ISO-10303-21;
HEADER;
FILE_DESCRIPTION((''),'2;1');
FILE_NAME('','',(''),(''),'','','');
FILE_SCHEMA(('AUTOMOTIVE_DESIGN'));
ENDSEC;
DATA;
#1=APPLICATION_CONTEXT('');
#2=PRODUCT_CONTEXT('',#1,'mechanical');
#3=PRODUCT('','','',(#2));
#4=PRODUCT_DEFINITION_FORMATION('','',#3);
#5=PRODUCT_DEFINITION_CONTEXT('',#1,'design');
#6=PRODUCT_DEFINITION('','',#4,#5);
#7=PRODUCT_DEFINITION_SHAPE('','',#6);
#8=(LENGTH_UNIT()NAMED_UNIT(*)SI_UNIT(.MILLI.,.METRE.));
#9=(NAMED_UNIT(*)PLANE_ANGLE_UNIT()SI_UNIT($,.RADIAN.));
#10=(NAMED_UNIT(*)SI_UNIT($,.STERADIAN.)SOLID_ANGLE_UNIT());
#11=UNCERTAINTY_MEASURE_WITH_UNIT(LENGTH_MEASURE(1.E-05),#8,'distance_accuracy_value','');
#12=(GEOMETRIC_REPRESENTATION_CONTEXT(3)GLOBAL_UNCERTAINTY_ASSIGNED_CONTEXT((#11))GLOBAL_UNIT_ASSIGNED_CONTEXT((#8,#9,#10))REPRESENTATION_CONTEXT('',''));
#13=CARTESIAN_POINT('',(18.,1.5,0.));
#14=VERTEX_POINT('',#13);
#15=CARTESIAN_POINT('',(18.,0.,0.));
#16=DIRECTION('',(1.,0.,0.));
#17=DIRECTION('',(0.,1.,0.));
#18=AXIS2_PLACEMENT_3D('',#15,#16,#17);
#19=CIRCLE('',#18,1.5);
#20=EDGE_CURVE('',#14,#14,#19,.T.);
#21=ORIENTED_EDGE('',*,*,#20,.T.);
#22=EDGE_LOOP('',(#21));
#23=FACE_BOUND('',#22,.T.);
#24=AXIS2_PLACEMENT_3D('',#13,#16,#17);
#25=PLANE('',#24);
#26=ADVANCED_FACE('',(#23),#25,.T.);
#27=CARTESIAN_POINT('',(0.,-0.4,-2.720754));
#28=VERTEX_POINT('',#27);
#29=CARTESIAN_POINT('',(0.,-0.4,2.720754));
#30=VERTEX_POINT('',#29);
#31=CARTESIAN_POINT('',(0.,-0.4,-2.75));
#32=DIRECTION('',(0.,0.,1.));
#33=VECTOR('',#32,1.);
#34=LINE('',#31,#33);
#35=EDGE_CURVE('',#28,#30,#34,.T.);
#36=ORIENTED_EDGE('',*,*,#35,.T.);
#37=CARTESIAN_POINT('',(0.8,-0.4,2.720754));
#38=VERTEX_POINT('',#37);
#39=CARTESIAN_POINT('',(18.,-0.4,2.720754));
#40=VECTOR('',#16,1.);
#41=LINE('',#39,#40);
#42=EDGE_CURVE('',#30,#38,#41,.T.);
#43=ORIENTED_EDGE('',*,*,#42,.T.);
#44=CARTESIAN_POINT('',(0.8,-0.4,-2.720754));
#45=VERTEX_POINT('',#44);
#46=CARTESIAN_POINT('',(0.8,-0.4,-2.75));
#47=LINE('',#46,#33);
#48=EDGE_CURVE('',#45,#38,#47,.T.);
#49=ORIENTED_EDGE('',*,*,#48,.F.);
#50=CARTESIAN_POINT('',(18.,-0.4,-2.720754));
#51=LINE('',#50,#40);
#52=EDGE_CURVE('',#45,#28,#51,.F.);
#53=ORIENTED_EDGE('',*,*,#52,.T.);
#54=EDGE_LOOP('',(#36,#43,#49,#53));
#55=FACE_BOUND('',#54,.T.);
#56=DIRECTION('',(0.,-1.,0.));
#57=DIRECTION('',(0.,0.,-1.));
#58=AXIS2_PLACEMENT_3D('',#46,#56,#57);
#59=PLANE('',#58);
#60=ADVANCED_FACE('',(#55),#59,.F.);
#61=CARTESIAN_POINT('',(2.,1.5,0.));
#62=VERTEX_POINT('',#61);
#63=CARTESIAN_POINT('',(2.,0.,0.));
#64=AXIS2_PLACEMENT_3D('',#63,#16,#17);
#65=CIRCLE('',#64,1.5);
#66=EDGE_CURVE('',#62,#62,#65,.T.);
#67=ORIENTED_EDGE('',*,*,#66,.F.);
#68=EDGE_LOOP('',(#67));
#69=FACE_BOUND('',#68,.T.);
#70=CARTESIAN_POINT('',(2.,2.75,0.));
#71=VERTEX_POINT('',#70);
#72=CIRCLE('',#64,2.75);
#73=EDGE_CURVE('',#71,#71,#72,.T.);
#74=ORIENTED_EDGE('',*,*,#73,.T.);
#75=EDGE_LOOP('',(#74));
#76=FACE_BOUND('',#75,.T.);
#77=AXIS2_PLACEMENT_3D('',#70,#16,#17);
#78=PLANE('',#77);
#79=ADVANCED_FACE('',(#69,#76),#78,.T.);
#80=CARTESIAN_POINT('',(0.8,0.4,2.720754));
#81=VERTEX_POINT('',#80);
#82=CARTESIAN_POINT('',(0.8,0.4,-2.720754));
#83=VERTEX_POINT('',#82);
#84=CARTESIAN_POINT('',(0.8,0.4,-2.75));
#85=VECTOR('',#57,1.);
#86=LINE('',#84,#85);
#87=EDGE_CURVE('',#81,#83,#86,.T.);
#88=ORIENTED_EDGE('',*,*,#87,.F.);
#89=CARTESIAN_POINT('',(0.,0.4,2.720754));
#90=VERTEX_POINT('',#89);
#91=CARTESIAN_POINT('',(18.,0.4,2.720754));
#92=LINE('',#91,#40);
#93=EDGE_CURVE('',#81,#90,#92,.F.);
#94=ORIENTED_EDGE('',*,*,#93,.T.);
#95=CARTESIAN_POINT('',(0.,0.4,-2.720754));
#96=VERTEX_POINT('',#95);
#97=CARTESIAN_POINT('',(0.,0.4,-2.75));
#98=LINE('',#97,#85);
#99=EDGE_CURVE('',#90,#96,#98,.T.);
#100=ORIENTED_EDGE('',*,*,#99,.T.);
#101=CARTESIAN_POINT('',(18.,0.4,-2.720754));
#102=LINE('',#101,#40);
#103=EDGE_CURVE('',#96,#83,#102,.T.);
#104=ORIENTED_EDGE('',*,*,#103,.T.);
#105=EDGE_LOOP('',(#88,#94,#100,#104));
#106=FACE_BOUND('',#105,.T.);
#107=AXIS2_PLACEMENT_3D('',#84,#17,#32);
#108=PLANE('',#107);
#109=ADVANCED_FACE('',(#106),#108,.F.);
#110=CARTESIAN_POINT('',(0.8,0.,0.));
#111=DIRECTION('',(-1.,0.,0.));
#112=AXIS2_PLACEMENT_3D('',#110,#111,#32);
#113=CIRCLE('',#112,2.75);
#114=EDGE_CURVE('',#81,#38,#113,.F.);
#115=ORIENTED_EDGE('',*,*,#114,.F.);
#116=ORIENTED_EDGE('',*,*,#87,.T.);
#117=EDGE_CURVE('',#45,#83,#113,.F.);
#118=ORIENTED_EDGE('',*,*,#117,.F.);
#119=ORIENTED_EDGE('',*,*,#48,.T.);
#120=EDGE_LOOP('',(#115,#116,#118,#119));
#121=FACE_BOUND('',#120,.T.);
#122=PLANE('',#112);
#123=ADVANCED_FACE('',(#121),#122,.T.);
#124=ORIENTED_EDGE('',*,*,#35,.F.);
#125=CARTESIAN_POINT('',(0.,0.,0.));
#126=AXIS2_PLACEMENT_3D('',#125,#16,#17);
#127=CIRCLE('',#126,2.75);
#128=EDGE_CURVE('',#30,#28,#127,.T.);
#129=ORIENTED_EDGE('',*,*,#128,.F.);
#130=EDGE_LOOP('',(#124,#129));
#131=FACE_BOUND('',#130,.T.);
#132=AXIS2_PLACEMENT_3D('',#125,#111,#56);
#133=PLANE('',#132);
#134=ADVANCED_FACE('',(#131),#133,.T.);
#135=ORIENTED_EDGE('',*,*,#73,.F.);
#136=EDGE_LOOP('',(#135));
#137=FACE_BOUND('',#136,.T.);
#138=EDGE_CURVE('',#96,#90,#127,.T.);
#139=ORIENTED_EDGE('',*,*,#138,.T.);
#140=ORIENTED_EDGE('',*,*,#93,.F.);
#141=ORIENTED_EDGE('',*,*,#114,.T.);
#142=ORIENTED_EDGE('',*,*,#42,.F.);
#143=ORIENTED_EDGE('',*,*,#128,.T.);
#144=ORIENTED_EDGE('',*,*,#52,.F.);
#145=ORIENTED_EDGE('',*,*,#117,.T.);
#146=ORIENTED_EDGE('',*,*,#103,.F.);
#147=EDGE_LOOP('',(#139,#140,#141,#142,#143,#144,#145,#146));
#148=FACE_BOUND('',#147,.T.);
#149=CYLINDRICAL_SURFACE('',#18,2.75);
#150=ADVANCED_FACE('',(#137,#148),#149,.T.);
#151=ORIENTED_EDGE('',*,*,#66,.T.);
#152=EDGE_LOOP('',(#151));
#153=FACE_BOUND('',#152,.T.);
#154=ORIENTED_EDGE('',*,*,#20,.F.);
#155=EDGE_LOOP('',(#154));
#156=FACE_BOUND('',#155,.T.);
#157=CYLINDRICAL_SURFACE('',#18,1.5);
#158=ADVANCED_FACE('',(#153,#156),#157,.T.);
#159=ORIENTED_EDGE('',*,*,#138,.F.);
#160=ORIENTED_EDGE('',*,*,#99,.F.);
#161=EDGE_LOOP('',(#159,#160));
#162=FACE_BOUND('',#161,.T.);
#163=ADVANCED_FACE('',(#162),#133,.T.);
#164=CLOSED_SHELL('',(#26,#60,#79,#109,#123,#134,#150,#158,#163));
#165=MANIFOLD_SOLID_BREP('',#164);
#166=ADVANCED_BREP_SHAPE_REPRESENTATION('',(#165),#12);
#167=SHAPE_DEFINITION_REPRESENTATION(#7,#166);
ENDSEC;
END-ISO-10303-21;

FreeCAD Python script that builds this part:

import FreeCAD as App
import Part
import Sketcher

V = App.Vector
Q = App.Units.Quantity

doc = App.newDocument("Part")
params = doc.addObject("Spreadsheet::Sheet", "Params")
for row, (alias, value) in enumerate([
    ("sketch1_width", "18 mm"),
    ("sketch1_width2", "16 mm"),
    ("sketch1_height", "1.5 mm"),
    ("sketch1_height2", "2.75 mm"),
    ("revolution_angle", "360 deg"),
    ("sketch2_width", "0.8 mm"),
    ("sketch2_height", "5.5 mm"),
    ("pocket1_length", "0.8 mm"),
], start=1):
    params.set(f"A{row}", alias)
    params.set(f"B{row}", "=" + value)
    params.setAlias(f"B{row}", alias)

body = doc.addObject("PartDesign::Body", "Body")

# Sketch on XY plane
sketch1 = body.newObject("Sketcher::SketchObject", "Sketch")
sketch1.AttachmentSupport = (doc.getObject("XY_Plane"), [""])
sketch1.MapMode = "FlatFace"
sketch1.addGeometry([
    Part.LineSegment(V(0, 2.8, 0), V(0, 0, 0)),  # 0
    Part.LineSegment(V(0, 0, 0), V(18, 0, 0)),  # 1
    Part.LineSegment(V(18, 0, 0), V(18, 1.5, 0)),  # 2
    Part.LineSegment(V(18, 1.5, 0), V(2, 1.5, 0)),  # 3
    Part.LineSegment(V(2, 1.5, 0), V(2, 2.8, 0)),  # 4
    Part.LineSegment(V(2, 2.8, 0), V(0, 2.8, 0)),  # 5
], False)
sketch1.addConstraint([
    Sketcher.Constraint("Coincident", 0, 2, 1, 1),
    Sketcher.Constraint("Coincident", 1, 2, 2, 1),
    Sketcher.Constraint("Coincident", 2, 2, 3, 1),
    Sketcher.Constraint("Coincident", 3, 2, 4, 1),
    Sketcher.Constraint("Coincident", 4, 2, 5, 1),
    Sketcher.Constraint("Coincident", 5, 2, 0, 1),
    Sketcher.Constraint("Vertical", 0),
    Sketcher.Constraint("Horizontal", 1),
    Sketcher.Constraint("Vertical", 2),
    Sketcher.Constraint("Horizontal", 3),
    Sketcher.Constraint("Vertical", 4),
    Sketcher.Constraint("Horizontal", 5),
    Sketcher.Constraint("Coincident", 0, 2, -1, 1),
    Sketcher.Constraint("DistanceX", 1, 1, 1, 2, Q("18 mm")),
    Sketcher.Constraint("DistanceX", 3, 2, 3, 1, Q("16 mm")),
    Sketcher.Constraint("DistanceY", 2, 1, 2, 2, Q("1.5 mm")),
    Sketcher.Constraint("DistanceY", 0, 2, 0, 1, Q("2.75 mm")),
])
sketch1.setExpression("Constraints[13]", "Params.sketch1_width")
sketch1.setExpression("Constraints[14]", "Params.sketch1_width2")
sketch1.setExpression("Constraints[15]", "Params.sketch1_height")
sketch1.setExpression("Constraints[16]", "Params.sketch1_height2")
revolution = body.newObject("PartDesign::Revolution", "Revolution")
revolution.Profile = sketch1
revolution.ReferenceAxis = (sketch1, ["H_Axis"])
revolution.setExpression("Angle", "Params.revolution_angle")

# Sketch on YZ plane
sketch2 = body.newObject("Sketcher::SketchObject", "Sketch001")
sketch2.AttachmentSupport = (doc.getObject("YZ_Plane"), [""])
sketch2.MapMode = "FlatFace"
sketch2.addGeometry([
    Part.LineSegment(V(0.4, -2.8, 0), V(-0.4, -2.8, 0)),
    Part.LineSegment(V(-0.4, -2.8, 0), V(-0.4, 2.8, 0)),
    Part.LineSegment(V(-0.4, 2.8, 0), V(0.4, 2.8, 0)),
    Part.LineSegment(V(0.4, 2.8, 0), V(0.4, -2.8, 0)),
], False)
sketch2.addConstraint([
    Sketcher.Constraint("Coincident", 0, 2, 1, 1),
    Sketcher.Constraint("Coincident", 1, 2, 2, 1),
    Sketcher.Constraint("Coincident", 2, 2, 3, 1),
    Sketcher.Constraint("Coincident", 3, 2, 0, 1),
    Sketcher.Constraint("Horizontal", 0),
    Sketcher.Constraint("Vertical", 1),
    Sketcher.Constraint("Horizontal", 2),
    Sketcher.Constraint("Vertical", 3),
    Sketcher.Constraint("Symmetric", 0, 2, 2, 2, -1, 1),
    Sketcher.Constraint("DistanceX", 0, 2, 0, 1, Q("0.8 mm")),
    Sketcher.Constraint("DistanceY", 1, 1, 1, 2, Q("5.5 mm")),
])
sketch2.setExpression("Constraints[9]", "Params.sketch2_width")
sketch2.setExpression("Constraints[10]", "Params.sketch2_height")
pocket1 = body.newObject("PartDesign::Pocket", "Pocket")
pocket1.Profile = sketch2
pocket1.setExpression("Length", "Params.pocket1_length")
pocket1.Reversed = True

doc.recompute()
